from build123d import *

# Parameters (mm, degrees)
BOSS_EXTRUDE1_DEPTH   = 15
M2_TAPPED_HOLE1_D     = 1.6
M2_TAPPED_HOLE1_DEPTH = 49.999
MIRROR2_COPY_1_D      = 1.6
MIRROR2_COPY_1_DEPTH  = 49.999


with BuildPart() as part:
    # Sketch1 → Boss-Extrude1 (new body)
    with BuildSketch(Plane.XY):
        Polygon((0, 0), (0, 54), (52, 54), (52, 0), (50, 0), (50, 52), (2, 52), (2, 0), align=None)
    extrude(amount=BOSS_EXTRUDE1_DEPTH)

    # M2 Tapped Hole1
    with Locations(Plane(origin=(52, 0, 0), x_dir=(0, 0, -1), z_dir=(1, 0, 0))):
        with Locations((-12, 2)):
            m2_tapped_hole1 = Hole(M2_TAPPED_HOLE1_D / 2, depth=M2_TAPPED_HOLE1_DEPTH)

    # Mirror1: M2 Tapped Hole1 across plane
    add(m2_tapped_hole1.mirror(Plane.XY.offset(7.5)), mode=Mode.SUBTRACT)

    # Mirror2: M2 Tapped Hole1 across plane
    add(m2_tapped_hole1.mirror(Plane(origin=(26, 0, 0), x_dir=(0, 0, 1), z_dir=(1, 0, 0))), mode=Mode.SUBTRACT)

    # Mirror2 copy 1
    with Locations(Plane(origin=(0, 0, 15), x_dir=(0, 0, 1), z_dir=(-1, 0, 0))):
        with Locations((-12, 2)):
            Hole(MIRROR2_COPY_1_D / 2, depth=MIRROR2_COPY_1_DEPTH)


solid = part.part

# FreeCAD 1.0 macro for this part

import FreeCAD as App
import Part
import Sketcher

V = App.Vector

doc = App.newDocument("Part")
params = doc.addObject("Spreadsheet::Sheet", "Params")
for row, (alias, value) in enumerate([
    ("sketch1_width", "2 mm"),
    ("sketch1_width2", "48 mm"),
    ("sketch1_height", "54 mm"),
    ("pad1_length", "15 mm"),
    ("sketch2_diameter", "1.6 mm"),
    ("hole_diameter", "1.6 mm"),
    ("hole_depth", "49.999 mm"),
    ("sketch3_diameter", "1.6 mm"),
    ("hole2_diameter", "1.6 mm"),
    ("hole2_depth", "49.999 mm"),
], start=1):
    params.set(f"A{row}", alias)
    params.set(f"B{row}", "=" + value)
    params.setAlias(f"B{row}", alias)

body = doc.addObject("PartDesign::Body", "Body")

sketch1 = body.newObject("Sketcher::SketchObject", "Sketch")
sketch1.AttachmentSupport = (doc.getObject("XY_Plane"), [""])
sketch1.MapMode = "FlatFace"
sketch1.addGeometry(Part.LineSegment(V(0, 54, 0), V(0, 0, 0)), False)
sketch1.addGeometry(Part.LineSegment(V(0, 0, 0), V(2, 0, 0)), False)
sketch1.addGeometry(Part.LineSegment(V(2, 0, 0), V(2, 52, 0)), False)
sketch1.addGeometry(Part.LineSegment(V(2, 52, 0), V(50, 52, 0)), False)
sketch1.addGeometry(Part.LineSegment(V(50, 52, 0), V(50, 0, 0)), False)
sketch1.addGeometry(Part.LineSegment(V(50, 0, 0), V(52, 0, 0)), False)
sketch1.addGeometry(Part.LineSegment(V(52, 0, 0), V(52, 54, 0)), False)
sketch1.addGeometry(Part.LineSegment(V(52, 54, 0), V(0, 54, 0)), False)
sketch1.addConstraint(Sketcher.Constraint("Coincident", 0, 2, 1, 1))
sketch1.addConstraint(Sketcher.Constraint("Coincident", 1, 2, 2, 1))
sketch1.addConstraint(Sketcher.Constraint("Coincident", 2, 2, 3, 1))
sketch1.addConstraint(Sketcher.Constraint("Coincident", 3, 2, 4, 1))
sketch1.addConstraint(Sketcher.Constraint("Coincident", 4, 2, 5, 1))
sketch1.addConstraint(Sketcher.Constraint("Coincident", 5, 2, 6, 1))
sketch1.addConstraint(Sketcher.Constraint("Coincident", 6, 2, 7, 1))
sketch1.addConstraint(Sketcher.Constraint("Coincident", 7, 2, 0, 1))
sketch1.addConstraint(Sketcher.Constraint("Vertical", 0))
sketch1.addConstraint(Sketcher.Constraint("Horizontal", 1))
sketch1.addConstraint(Sketcher.Constraint("Vertical", 2))
sketch1.addConstraint(Sketcher.Constraint("Horizontal", 3))
sketch1.addConstraint(Sketcher.Constraint("Vertical", 4))
sketch1.addConstraint(Sketcher.Constraint("Horizontal", 5))
sketch1.addConstraint(Sketcher.Constraint("Vertical", 6))
sketch1.addConstraint(Sketcher.Constraint("Horizontal", 7))
sketch1.addConstraint(Sketcher.Constraint("Coincident", 0, 2, -1, 1))
sketch1.addConstraint(Sketcher.Constraint("PointOnObject", 4, 2, -1))
sketch1.addConstraint(Sketcher.Constraint("Equal", 1, 5))
sketch1.addConstraint(Sketcher.Constraint("Equal", 7, 2))
sketch1.addConstraint(Sketcher.Constraint("DistanceX", 1, 1, 1, 2, 2.0))
sketch1.addConstraint(Sketcher.Constraint("DistanceX", 3, 1, 3, 2, 48.0))
sketch1.addConstraint(Sketcher.Constraint("DistanceY", 0, 2, 0, 1, 54.0))
sketch1.setExpression("Constraints[20]", "Params.sketch1_width")
sketch1.setExpression("Constraints[21]", "Params.sketch1_width2")
sketch1.setExpression("Constraints[22]", "Params.sketch1_height")
pad1 = body.newObject("PartDesign::Pad", "Pad")
pad1.Profile = sketch1
pad1.setExpression("Length", "Params.pad1_length")

sketch2 = body.newObject("Sketcher::SketchObject", "Sketch001")
sketch2.AttachmentSupport = (doc.getObject("YZ_Plane"), [""])
sketch2.MapMode = "FlatFace"
sketch2.AttachmentOffset = App.Placement(V(0, 0, 52), App.Rotation())
sketch2.addGeometry(Part.Circle(V(2, 12, 0), V(0, 0, 1), 0.8), False)
sketch2.addConstraint(Sketcher.Constraint("Diameter", 0, 1.6))
sketch2.addConstraint(Sketcher.Constraint("DistanceX", -1, 1, 0, 3, 2.0))
sketch2.addConstraint(Sketcher.Constraint("DistanceY", -1, 1, 0, 3, 12.0))
sketch2.setExpression("Constraints[0]", "Params.sketch2_diameter")
doc.recompute()
hole = body.newObject("PartDesign::Hole", "Hole")
hole.Profile = sketch2
hole.ThreadType = "None"
hole.setExpression("Diameter", "Params.hole_diameter")
hole.DepthType = "Dimension"
hole.setExpression("Depth", "Params.hole_depth")
hole.DrillPoint = "Flat"
doc.recompute()

datumplane = body.newObject("PartDesign::Plane", "DatumPlane")
datumplane.AttachmentSupport = (doc.getObject("XY_Plane"), [""])
datumplane.MapMode = "FlatFace"
datumplane.AttachmentOffset = App.Placement(V(0, 0, 7.5), App.Rotation())
mirrored = body.newObject("PartDesign::Mirrored", "Mirrored")
mirrored.Originals = [hole]
mirrored.MirrorPlane = (datumplane, [""])
body.Tip = mirrored
doc.recompute()

datumplane2 = body.newObject("PartDesign::Plane", "DatumPlane001")
datumplane2.AttachmentSupport = (doc.getObject("YZ_Plane"), [""])
datumplane2.MapMode = "FlatFace"
datumplane2.AttachmentOffset = App.Placement(V(0, 0, 26), App.Rotation())
mirrored2 = body.newObject("PartDesign::Mirrored", "Mirrored001")
mirrored2.Originals = [hole]
mirrored2.MirrorPlane = (datumplane2, [""])
body.Tip = mirrored2

sketch3 = body.newObject("Sketcher::SketchObject", "Sketch002")
sketch3.AttachmentSupport = (doc.getObject("YZ_Plane"), [""])
sketch3.MapMode = "FlatFace"
sketch3.addGeometry(Part.Circle(V(2, 3, 0), V(0, 0, 1), 0.8), False)
sketch3.addConstraint(Sketcher.Constraint("Diameter", 0, 1.6))
sketch3.addConstraint(Sketcher.Constraint("DistanceX", -1, 1, 0, 3, 2.0))
sketch3.addConstraint(Sketcher.Constraint("DistanceY", -1, 1, 0, 3, 3.0))
sketch3.setExpression("Constraints[0]", "Params.sketch3_diameter")
doc.recompute()
hole2 = body.newObject("PartDesign::Hole", "Hole001")
hole2.Profile = sketch3
hole2.ThreadType = "None"
hole2.setExpression("Diameter", "Params.hole2_diameter")
hole2.DepthType = "Dimension"
hole2.setExpression("Depth", "Params.hole2_depth")
hole2.DrillPoint = "Flat"
hole2.Reversed = True

doc.recompute()
